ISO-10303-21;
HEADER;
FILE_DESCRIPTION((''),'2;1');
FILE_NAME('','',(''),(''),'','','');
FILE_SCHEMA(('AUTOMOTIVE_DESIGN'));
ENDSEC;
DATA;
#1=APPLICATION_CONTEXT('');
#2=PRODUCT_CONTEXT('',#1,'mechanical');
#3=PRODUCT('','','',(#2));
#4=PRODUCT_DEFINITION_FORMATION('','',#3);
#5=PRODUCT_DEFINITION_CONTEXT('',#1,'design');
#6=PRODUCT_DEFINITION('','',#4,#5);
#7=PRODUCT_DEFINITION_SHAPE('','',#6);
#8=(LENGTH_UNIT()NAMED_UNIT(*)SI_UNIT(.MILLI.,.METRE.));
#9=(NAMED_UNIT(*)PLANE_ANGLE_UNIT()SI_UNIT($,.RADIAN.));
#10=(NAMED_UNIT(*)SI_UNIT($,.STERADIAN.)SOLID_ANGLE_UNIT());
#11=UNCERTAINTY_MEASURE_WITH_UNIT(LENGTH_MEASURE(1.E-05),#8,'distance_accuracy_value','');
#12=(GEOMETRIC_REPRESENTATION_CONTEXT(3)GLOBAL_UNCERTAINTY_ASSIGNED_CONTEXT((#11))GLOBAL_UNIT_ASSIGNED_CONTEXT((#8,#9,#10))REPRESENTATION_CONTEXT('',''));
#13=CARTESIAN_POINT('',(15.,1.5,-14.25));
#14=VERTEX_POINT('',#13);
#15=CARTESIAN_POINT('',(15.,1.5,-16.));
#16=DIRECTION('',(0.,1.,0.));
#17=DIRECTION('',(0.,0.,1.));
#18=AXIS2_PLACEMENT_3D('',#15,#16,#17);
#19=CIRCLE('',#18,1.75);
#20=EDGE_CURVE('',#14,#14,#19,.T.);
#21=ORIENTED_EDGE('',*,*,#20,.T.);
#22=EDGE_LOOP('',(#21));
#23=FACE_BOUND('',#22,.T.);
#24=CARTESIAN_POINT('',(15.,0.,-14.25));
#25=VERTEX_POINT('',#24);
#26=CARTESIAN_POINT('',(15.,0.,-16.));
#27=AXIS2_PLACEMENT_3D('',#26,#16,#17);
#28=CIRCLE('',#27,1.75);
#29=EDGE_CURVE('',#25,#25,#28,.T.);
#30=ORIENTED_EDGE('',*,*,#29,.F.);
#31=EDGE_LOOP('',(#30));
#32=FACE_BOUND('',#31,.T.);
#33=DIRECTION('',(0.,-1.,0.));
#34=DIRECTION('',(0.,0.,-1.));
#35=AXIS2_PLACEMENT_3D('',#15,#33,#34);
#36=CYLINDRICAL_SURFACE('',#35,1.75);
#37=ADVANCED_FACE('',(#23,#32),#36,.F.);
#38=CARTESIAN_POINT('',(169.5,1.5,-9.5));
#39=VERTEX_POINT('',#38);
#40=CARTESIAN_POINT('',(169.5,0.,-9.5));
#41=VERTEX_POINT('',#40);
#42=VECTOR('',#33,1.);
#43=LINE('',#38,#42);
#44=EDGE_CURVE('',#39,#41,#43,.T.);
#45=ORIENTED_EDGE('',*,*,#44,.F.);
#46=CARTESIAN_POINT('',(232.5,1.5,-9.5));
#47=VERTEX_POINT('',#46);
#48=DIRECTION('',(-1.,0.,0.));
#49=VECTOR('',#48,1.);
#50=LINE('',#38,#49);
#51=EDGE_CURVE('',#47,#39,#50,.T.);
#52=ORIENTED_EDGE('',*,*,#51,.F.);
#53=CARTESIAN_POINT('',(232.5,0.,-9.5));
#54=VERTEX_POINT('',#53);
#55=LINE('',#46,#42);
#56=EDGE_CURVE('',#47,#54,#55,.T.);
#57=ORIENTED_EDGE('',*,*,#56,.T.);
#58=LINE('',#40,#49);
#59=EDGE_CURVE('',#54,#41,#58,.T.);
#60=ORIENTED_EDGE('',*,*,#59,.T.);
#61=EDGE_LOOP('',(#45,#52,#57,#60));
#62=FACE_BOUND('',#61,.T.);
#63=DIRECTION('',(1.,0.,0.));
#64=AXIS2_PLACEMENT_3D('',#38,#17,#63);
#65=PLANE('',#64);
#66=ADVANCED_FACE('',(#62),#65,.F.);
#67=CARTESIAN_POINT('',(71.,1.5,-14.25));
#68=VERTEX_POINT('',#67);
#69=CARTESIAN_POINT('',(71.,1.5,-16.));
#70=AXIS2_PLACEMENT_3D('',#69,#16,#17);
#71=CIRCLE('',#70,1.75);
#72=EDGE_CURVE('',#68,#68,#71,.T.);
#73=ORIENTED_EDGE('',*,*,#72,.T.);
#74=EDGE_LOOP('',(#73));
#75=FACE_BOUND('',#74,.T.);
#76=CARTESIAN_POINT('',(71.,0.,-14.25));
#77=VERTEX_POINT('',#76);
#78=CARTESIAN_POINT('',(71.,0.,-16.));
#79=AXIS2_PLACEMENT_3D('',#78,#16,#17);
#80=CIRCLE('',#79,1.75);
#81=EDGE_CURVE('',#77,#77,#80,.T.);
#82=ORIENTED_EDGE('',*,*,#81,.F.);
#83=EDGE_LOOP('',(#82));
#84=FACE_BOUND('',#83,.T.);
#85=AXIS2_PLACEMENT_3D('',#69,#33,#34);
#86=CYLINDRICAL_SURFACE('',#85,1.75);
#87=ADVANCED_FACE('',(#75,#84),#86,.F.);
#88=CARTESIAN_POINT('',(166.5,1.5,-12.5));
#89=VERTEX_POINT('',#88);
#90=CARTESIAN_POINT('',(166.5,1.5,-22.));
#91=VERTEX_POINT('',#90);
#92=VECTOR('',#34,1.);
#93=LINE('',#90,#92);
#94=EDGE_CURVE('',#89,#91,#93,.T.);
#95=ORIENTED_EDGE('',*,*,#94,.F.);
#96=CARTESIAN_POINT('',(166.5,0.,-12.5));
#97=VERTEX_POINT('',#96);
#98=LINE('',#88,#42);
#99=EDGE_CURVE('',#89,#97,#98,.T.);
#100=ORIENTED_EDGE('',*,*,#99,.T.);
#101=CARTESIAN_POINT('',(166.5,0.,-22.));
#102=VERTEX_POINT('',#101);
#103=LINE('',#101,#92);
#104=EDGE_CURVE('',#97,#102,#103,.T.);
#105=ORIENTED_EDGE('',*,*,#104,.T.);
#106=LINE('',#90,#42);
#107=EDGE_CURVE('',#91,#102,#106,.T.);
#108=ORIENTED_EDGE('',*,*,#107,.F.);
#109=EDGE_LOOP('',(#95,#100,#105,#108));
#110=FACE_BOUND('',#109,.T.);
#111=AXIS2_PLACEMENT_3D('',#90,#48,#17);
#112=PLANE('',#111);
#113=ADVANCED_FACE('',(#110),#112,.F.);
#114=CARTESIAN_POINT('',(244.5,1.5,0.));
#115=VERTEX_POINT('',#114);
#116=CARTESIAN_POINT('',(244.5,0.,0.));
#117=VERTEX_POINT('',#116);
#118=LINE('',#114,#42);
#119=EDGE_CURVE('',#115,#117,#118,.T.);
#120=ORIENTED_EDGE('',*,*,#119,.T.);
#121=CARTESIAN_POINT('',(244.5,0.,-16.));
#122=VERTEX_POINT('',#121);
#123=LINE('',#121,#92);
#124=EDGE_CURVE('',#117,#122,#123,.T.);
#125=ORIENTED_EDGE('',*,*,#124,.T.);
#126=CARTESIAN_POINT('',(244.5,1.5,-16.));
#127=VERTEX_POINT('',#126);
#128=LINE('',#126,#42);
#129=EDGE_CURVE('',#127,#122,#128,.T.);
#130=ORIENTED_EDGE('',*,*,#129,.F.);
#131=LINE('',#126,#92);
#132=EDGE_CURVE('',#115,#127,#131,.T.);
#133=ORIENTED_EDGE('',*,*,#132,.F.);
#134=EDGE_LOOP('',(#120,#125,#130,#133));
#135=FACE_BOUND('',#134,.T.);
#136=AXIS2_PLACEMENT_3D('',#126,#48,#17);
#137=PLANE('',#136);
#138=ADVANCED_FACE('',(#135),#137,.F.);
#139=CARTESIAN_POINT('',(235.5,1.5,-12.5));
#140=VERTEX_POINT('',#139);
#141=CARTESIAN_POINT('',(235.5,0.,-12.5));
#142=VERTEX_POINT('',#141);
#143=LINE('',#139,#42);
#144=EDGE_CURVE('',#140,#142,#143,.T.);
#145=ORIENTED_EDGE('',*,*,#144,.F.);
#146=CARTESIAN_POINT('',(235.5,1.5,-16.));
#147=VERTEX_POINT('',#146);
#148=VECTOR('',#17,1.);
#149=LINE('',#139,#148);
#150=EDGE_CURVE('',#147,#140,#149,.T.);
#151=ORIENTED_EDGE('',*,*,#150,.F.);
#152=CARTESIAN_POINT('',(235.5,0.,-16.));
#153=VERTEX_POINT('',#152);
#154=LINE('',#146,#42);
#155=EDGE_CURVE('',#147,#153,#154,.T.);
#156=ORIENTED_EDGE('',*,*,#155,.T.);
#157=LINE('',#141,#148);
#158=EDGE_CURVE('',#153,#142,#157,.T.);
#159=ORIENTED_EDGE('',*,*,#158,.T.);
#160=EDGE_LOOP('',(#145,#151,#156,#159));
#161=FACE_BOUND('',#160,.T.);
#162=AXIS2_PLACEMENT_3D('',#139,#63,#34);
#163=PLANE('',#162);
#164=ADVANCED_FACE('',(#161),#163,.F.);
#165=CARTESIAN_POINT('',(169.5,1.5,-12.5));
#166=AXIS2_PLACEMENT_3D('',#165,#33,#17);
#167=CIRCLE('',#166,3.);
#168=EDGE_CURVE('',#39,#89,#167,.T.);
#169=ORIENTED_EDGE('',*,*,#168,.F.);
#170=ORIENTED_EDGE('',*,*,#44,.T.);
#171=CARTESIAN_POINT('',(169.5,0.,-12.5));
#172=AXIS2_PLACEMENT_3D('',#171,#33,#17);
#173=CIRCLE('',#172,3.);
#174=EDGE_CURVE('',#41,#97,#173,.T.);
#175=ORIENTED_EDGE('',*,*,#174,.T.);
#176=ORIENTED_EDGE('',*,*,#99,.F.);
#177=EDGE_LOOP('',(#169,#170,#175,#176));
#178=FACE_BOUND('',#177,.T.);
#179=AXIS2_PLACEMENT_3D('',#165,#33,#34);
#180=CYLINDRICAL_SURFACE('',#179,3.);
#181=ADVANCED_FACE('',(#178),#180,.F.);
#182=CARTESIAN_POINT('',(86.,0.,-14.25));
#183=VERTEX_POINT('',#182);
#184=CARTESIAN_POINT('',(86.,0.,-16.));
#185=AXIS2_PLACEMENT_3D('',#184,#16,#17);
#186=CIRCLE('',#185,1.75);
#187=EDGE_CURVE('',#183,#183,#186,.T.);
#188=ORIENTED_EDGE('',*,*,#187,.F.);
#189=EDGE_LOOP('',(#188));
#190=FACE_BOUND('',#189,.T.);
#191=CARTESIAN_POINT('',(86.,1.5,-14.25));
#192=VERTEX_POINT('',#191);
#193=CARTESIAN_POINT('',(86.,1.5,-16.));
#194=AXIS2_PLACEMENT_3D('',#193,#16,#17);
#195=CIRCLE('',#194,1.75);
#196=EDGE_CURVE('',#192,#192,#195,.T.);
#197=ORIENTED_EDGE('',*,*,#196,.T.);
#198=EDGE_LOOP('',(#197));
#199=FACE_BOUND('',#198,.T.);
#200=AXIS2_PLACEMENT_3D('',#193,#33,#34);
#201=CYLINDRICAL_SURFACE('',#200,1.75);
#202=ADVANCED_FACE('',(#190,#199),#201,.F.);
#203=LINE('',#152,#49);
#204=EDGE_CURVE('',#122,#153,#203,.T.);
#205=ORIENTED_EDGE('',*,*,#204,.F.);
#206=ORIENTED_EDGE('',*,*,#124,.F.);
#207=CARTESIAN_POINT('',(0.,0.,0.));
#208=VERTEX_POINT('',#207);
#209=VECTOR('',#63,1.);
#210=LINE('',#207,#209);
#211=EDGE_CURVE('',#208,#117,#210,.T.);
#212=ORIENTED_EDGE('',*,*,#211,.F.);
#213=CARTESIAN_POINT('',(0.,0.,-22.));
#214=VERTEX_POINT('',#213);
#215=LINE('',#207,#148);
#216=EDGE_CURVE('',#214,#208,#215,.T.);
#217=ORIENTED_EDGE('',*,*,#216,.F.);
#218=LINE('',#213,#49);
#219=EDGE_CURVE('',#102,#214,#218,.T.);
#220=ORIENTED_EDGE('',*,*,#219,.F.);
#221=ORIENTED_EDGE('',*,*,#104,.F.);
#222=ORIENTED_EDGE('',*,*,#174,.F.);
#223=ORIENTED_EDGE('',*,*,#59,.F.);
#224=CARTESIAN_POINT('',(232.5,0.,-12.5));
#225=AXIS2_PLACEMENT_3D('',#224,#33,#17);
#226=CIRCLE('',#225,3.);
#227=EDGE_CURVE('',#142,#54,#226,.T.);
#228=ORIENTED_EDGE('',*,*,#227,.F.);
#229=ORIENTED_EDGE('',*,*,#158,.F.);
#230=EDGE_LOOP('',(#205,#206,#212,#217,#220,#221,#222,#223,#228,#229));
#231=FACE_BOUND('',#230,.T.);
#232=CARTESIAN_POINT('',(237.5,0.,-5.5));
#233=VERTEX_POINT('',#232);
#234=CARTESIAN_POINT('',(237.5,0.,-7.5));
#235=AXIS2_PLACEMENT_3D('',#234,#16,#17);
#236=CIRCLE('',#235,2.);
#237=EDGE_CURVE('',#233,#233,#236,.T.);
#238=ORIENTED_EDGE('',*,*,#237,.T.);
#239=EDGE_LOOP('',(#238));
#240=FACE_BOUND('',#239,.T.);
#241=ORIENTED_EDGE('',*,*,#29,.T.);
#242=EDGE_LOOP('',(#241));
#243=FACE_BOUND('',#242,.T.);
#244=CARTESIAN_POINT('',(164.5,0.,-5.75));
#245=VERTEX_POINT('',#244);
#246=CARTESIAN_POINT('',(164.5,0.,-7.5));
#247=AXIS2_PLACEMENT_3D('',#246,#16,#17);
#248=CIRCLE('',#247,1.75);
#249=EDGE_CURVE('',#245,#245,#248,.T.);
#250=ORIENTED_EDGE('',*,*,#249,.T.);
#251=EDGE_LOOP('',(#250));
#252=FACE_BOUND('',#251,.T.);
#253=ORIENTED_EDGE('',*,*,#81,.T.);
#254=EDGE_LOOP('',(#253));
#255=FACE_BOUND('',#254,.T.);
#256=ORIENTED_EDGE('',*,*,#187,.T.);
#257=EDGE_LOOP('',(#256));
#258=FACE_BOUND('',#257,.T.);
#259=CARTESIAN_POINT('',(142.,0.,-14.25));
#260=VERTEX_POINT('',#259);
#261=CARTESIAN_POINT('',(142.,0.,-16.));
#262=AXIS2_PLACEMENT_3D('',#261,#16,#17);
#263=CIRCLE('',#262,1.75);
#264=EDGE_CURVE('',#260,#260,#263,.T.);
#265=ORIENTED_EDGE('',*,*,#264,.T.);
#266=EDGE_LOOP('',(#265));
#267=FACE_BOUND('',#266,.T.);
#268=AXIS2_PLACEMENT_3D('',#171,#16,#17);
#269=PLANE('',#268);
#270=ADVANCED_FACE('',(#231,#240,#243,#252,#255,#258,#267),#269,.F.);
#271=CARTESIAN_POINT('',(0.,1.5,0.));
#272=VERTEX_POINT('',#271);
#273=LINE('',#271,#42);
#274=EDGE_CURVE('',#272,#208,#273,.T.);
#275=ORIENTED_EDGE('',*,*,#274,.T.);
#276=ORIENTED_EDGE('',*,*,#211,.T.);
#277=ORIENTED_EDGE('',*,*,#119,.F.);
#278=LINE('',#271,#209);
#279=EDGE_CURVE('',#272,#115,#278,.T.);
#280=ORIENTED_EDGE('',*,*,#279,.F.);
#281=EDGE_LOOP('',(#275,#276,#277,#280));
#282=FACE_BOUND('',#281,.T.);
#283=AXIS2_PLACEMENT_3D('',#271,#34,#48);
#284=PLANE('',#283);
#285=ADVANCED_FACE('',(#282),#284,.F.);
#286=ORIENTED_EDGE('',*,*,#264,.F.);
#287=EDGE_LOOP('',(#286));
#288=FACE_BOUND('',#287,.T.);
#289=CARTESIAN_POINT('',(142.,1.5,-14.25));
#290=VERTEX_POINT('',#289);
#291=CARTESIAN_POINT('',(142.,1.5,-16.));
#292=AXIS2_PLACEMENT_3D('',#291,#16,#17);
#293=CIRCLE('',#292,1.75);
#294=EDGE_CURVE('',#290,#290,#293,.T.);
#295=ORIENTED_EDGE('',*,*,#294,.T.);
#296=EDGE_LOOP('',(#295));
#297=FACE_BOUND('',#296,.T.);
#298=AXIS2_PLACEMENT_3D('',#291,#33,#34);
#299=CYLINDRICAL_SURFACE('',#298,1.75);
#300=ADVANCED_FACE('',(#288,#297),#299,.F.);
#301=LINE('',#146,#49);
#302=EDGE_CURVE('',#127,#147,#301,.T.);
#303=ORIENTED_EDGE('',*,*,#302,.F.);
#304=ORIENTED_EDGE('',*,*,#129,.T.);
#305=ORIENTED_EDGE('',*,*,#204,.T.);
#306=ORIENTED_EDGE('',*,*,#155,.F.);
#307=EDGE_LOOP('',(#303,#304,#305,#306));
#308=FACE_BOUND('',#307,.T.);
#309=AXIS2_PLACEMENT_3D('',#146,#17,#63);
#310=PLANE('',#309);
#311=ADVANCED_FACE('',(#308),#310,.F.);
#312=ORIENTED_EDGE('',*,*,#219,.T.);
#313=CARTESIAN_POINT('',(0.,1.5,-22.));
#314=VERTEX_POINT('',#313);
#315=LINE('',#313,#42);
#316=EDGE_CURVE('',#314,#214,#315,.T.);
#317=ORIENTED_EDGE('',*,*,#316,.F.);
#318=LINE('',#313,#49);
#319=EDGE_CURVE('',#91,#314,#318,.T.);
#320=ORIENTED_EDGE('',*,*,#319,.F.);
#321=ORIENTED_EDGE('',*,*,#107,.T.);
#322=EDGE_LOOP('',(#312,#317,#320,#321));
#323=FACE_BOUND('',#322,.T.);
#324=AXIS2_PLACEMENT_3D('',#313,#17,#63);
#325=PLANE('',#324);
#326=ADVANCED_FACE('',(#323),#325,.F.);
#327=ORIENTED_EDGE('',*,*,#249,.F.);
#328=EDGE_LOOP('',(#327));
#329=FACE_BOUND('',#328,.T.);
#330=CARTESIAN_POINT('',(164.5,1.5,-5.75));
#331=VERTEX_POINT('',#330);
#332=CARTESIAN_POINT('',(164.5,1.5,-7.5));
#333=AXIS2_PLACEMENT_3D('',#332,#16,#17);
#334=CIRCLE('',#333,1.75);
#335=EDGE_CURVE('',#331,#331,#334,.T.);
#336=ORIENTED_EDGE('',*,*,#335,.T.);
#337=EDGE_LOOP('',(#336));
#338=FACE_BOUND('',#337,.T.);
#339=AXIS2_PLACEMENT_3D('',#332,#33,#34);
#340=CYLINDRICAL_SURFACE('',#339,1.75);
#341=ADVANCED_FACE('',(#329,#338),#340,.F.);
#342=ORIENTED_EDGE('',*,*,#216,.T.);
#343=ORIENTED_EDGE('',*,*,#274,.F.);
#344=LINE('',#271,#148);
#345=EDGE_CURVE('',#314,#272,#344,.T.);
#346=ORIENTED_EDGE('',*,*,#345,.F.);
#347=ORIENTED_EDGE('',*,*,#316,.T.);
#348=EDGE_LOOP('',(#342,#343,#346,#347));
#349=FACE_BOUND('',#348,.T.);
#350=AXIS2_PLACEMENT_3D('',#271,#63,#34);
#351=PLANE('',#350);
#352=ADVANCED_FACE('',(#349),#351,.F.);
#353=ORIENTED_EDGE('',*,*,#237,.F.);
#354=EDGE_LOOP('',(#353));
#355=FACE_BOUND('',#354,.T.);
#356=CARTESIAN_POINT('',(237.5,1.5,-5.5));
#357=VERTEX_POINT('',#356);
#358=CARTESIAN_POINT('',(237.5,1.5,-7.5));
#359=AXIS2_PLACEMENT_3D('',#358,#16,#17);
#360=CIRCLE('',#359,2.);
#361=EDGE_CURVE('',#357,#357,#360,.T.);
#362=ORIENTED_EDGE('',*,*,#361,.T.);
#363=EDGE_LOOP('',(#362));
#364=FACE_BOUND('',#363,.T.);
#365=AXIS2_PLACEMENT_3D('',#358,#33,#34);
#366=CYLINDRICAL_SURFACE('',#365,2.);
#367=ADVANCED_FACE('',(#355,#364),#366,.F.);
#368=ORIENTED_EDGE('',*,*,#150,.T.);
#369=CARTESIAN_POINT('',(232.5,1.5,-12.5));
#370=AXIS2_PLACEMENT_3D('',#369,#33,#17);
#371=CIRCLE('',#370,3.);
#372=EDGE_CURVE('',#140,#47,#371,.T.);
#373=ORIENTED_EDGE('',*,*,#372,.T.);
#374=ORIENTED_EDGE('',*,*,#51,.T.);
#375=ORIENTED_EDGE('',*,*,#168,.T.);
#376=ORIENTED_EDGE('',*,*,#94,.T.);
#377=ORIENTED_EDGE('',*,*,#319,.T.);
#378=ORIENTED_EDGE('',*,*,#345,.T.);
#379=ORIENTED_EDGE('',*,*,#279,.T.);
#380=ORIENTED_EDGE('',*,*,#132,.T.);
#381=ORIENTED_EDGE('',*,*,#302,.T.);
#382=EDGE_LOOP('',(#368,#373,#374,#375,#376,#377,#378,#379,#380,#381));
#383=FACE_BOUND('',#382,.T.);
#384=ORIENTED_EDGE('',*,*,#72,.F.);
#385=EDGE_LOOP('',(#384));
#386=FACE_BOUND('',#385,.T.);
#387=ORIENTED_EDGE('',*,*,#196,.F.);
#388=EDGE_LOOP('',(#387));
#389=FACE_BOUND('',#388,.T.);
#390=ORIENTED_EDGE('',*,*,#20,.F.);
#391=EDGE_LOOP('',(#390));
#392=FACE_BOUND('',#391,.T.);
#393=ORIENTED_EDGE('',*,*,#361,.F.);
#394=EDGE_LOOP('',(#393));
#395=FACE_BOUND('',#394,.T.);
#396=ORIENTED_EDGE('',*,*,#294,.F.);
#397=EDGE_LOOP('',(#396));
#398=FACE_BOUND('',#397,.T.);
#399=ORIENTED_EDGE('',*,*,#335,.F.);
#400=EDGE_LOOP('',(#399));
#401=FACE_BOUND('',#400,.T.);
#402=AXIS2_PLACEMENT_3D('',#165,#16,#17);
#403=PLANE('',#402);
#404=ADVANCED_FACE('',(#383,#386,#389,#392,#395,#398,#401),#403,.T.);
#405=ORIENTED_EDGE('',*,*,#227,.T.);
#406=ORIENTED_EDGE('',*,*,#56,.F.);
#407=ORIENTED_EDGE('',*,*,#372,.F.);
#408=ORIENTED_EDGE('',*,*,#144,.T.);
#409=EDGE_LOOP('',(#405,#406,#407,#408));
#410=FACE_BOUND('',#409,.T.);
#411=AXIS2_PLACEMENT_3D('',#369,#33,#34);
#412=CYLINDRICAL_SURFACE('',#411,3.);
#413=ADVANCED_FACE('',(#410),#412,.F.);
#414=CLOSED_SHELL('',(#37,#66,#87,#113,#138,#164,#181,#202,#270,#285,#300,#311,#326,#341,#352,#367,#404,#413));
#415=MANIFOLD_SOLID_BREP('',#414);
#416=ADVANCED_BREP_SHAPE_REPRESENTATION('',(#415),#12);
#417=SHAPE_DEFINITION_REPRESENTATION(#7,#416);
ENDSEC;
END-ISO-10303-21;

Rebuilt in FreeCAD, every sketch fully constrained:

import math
import FreeCAD as App
import Part
import Sketcher
from FreeCAD import Vector
Q = App.Units.Quantity

doc = App.newDocument("Part")
body = doc.addObject("PartDesign::Body", "Body")

sketch1 = doc.addObject("Sketcher::SketchObject", "Sketch")
body.addObject(sketch1)
sketch1.AttachmentSupport = (doc.XZ_Plane, [""])
sketch1.MapMode = "FlatFace"
sketch1.addGeometry([
    Part.LineSegment(Vector(166.5, -12.5, 0), Vector(166.5, -22, 0)),
    Part.LineSegment(Vector(166.5, -22, 0), Vector(0, -22, 0)),
    Part.LineSegment(Vector(0, -22, 0), Vector(0, 0, 0)),
    Part.LineSegment(Vector(0, 0, 0), Vector(244.5, 0, 0)),
    Part.LineSegment(Vector(244.5, 0, 0), Vector(244.5, -16, 0)),
    Part.LineSegment(Vector(244.5, -16, 0), Vector(235.5, -16, 0)),
    Part.LineSegment(Vector(235.5, -16, 0), Vector(235.5, -12.5, 0)),
    Part.ArcOfCircle(Part.Circle(Vector(232.5, -12.5, 0), Vector(0, 0, 1), 3), math.radians(0), math.radians(90)),
    Part.LineSegment(Vector(232.5, -9.5, 0), Vector(169.5, -9.5, 0)),
    Part.ArcOfCircle(Part.Circle(Vector(169.5, -12.5, 0), Vector(0, 0, 1), 3), math.radians(90), math.radians(180)),
    Part.Circle(Vector(164.5, -7.5, 0), Vector(0, 0, 1), 1.8),
    Part.Circle(Vector(237.5, -7.5, 0), Vector(0, 0, 1), 2),
    Part.Circle(Vector(15, -16, 0), Vector(0, 0, 1), 1.8),
    Part.Circle(Vector(71, -16, 0), Vector(0, 0, 1), 1.8),
    Part.Circle(Vector(86, -16, 0), Vector(0, 0, 1), 1.8),
    Part.Circle(Vector(142, -16, 0), Vector(0, 0, 1), 1.8),
], False)
sketch1.addConstraint([
    Sketcher.Constraint("Coincident", 0, 2, 1, 1),
    Sketcher.Constraint("Coincident", 1, 2, 2, 1),
    Sketcher.Constraint("Coincident", 2, 2, 3, 1),
    Sketcher.Constraint("Coincident", 3, 2, 4, 1),
    Sketcher.Constraint("Coincident", 4, 2, 5, 1),
    Sketcher.Constraint("Coincident", 5, 2, 6, 1),
    Sketcher.Constraint("Tangent", 6, 2, 7, 1),
    Sketcher.Constraint("Tangent", 7, 2, 8, 1),
    Sketcher.Constraint("Tangent", 8, 2, 9, 1),
    Sketcher.Constraint("Tangent", 9, 2, 0, 1),
    Sketcher.Constraint("Vertical", 0),
    Sketcher.Constraint("Horizontal", 1),
    Sketcher.Constraint("Vertical", 2),
    Sketcher.Constraint("Horizontal", 3),
    Sketcher.Constraint("Vertical", 4),
    Sketcher.Constraint("Horizontal", 5),
    Sketcher.Constraint("Vertical", 6),
    Sketcher.Constraint("Horizontal", 8),
    Sketcher.Constraint("Coincident", 2, 2, -1, 1),
    Sketcher.Constraint("Equal", 7, 9),
    Sketcher.Constraint("Equal", 10, 12),
    Sketcher.Constraint("Equal", 12, 13),
    Sketcher.Constraint("Equal", 13, 14),
    Sketcher.Constraint("Equal", 14, 15),
    Sketcher.Constraint("Horizontal", 10, 3, 11, 3),
    Sketcher.Constraint("Horizontal", 12, 3, 13, 3),
    Sketcher.Constraint("Horizontal", 13, 3, 14, 3),
    Sketcher.Constraint("Horizontal", 14, 3, 15, 3),
    Sketcher.Constraint("Horizontal", 15, 3, 4, 2),
    Sketcher.Constraint("Diameter", 11, Q("4 mm")),
    Sketcher.Constraint("Radius", 7, Q("3 mm")),
    Sketcher.Constraint("Diameter", 10, Q("3.5 mm")),
    Sketcher.Constraint("DistanceX", 5, 2, 5, 1, Q("9 mm")),
    Sketcher.Constraint("DistanceX", 8, 2, 8, 1, Q("63 mm")),
    Sketcher.Constraint("DistanceY", 2, 1, 2, 2, Q("22 mm")),
    Sketcher.Constraint("DistanceY", 4, 2, 4, 1, Q("16 mm")),
    Sketcher.Constraint("DistanceX", 1, 2, 1, 1, Q("166.5 mm")),
    Sketcher.Constraint("DistanceY", 0, 2, 0, 1, Q("9.5 mm")),
    Sketcher.Constraint("DistanceX", -1, 1, 12, 3, Q("15 mm")),
    Sketcher.Constraint("DistanceX", -1, 1, 13, 3, Q("71 mm")),
    Sketcher.Constraint("DistanceX", -1, 1, 14, 3, Q("86 mm")),
    Sketcher.Constraint("DistanceX", -1, 1, 15, 3, Q("142 mm")),
    Sketcher.Constraint("DistanceX", 10, 3, 9, 3, Q("5 mm")),
    Sketcher.Constraint("DistanceY", 9, 3, 10, 3, Q("5 mm")),
    Sketcher.Constraint("DistanceX", 7, 3, 11, 3, Q("5 mm")),
])
pad1 = doc.addObject("PartDesign::Pad", "Pad")
body.addObject(pad1)
pad1.Profile = sketch1
pad1.Length = 1.5
pad1.Reversed = True

doc.recompute()
